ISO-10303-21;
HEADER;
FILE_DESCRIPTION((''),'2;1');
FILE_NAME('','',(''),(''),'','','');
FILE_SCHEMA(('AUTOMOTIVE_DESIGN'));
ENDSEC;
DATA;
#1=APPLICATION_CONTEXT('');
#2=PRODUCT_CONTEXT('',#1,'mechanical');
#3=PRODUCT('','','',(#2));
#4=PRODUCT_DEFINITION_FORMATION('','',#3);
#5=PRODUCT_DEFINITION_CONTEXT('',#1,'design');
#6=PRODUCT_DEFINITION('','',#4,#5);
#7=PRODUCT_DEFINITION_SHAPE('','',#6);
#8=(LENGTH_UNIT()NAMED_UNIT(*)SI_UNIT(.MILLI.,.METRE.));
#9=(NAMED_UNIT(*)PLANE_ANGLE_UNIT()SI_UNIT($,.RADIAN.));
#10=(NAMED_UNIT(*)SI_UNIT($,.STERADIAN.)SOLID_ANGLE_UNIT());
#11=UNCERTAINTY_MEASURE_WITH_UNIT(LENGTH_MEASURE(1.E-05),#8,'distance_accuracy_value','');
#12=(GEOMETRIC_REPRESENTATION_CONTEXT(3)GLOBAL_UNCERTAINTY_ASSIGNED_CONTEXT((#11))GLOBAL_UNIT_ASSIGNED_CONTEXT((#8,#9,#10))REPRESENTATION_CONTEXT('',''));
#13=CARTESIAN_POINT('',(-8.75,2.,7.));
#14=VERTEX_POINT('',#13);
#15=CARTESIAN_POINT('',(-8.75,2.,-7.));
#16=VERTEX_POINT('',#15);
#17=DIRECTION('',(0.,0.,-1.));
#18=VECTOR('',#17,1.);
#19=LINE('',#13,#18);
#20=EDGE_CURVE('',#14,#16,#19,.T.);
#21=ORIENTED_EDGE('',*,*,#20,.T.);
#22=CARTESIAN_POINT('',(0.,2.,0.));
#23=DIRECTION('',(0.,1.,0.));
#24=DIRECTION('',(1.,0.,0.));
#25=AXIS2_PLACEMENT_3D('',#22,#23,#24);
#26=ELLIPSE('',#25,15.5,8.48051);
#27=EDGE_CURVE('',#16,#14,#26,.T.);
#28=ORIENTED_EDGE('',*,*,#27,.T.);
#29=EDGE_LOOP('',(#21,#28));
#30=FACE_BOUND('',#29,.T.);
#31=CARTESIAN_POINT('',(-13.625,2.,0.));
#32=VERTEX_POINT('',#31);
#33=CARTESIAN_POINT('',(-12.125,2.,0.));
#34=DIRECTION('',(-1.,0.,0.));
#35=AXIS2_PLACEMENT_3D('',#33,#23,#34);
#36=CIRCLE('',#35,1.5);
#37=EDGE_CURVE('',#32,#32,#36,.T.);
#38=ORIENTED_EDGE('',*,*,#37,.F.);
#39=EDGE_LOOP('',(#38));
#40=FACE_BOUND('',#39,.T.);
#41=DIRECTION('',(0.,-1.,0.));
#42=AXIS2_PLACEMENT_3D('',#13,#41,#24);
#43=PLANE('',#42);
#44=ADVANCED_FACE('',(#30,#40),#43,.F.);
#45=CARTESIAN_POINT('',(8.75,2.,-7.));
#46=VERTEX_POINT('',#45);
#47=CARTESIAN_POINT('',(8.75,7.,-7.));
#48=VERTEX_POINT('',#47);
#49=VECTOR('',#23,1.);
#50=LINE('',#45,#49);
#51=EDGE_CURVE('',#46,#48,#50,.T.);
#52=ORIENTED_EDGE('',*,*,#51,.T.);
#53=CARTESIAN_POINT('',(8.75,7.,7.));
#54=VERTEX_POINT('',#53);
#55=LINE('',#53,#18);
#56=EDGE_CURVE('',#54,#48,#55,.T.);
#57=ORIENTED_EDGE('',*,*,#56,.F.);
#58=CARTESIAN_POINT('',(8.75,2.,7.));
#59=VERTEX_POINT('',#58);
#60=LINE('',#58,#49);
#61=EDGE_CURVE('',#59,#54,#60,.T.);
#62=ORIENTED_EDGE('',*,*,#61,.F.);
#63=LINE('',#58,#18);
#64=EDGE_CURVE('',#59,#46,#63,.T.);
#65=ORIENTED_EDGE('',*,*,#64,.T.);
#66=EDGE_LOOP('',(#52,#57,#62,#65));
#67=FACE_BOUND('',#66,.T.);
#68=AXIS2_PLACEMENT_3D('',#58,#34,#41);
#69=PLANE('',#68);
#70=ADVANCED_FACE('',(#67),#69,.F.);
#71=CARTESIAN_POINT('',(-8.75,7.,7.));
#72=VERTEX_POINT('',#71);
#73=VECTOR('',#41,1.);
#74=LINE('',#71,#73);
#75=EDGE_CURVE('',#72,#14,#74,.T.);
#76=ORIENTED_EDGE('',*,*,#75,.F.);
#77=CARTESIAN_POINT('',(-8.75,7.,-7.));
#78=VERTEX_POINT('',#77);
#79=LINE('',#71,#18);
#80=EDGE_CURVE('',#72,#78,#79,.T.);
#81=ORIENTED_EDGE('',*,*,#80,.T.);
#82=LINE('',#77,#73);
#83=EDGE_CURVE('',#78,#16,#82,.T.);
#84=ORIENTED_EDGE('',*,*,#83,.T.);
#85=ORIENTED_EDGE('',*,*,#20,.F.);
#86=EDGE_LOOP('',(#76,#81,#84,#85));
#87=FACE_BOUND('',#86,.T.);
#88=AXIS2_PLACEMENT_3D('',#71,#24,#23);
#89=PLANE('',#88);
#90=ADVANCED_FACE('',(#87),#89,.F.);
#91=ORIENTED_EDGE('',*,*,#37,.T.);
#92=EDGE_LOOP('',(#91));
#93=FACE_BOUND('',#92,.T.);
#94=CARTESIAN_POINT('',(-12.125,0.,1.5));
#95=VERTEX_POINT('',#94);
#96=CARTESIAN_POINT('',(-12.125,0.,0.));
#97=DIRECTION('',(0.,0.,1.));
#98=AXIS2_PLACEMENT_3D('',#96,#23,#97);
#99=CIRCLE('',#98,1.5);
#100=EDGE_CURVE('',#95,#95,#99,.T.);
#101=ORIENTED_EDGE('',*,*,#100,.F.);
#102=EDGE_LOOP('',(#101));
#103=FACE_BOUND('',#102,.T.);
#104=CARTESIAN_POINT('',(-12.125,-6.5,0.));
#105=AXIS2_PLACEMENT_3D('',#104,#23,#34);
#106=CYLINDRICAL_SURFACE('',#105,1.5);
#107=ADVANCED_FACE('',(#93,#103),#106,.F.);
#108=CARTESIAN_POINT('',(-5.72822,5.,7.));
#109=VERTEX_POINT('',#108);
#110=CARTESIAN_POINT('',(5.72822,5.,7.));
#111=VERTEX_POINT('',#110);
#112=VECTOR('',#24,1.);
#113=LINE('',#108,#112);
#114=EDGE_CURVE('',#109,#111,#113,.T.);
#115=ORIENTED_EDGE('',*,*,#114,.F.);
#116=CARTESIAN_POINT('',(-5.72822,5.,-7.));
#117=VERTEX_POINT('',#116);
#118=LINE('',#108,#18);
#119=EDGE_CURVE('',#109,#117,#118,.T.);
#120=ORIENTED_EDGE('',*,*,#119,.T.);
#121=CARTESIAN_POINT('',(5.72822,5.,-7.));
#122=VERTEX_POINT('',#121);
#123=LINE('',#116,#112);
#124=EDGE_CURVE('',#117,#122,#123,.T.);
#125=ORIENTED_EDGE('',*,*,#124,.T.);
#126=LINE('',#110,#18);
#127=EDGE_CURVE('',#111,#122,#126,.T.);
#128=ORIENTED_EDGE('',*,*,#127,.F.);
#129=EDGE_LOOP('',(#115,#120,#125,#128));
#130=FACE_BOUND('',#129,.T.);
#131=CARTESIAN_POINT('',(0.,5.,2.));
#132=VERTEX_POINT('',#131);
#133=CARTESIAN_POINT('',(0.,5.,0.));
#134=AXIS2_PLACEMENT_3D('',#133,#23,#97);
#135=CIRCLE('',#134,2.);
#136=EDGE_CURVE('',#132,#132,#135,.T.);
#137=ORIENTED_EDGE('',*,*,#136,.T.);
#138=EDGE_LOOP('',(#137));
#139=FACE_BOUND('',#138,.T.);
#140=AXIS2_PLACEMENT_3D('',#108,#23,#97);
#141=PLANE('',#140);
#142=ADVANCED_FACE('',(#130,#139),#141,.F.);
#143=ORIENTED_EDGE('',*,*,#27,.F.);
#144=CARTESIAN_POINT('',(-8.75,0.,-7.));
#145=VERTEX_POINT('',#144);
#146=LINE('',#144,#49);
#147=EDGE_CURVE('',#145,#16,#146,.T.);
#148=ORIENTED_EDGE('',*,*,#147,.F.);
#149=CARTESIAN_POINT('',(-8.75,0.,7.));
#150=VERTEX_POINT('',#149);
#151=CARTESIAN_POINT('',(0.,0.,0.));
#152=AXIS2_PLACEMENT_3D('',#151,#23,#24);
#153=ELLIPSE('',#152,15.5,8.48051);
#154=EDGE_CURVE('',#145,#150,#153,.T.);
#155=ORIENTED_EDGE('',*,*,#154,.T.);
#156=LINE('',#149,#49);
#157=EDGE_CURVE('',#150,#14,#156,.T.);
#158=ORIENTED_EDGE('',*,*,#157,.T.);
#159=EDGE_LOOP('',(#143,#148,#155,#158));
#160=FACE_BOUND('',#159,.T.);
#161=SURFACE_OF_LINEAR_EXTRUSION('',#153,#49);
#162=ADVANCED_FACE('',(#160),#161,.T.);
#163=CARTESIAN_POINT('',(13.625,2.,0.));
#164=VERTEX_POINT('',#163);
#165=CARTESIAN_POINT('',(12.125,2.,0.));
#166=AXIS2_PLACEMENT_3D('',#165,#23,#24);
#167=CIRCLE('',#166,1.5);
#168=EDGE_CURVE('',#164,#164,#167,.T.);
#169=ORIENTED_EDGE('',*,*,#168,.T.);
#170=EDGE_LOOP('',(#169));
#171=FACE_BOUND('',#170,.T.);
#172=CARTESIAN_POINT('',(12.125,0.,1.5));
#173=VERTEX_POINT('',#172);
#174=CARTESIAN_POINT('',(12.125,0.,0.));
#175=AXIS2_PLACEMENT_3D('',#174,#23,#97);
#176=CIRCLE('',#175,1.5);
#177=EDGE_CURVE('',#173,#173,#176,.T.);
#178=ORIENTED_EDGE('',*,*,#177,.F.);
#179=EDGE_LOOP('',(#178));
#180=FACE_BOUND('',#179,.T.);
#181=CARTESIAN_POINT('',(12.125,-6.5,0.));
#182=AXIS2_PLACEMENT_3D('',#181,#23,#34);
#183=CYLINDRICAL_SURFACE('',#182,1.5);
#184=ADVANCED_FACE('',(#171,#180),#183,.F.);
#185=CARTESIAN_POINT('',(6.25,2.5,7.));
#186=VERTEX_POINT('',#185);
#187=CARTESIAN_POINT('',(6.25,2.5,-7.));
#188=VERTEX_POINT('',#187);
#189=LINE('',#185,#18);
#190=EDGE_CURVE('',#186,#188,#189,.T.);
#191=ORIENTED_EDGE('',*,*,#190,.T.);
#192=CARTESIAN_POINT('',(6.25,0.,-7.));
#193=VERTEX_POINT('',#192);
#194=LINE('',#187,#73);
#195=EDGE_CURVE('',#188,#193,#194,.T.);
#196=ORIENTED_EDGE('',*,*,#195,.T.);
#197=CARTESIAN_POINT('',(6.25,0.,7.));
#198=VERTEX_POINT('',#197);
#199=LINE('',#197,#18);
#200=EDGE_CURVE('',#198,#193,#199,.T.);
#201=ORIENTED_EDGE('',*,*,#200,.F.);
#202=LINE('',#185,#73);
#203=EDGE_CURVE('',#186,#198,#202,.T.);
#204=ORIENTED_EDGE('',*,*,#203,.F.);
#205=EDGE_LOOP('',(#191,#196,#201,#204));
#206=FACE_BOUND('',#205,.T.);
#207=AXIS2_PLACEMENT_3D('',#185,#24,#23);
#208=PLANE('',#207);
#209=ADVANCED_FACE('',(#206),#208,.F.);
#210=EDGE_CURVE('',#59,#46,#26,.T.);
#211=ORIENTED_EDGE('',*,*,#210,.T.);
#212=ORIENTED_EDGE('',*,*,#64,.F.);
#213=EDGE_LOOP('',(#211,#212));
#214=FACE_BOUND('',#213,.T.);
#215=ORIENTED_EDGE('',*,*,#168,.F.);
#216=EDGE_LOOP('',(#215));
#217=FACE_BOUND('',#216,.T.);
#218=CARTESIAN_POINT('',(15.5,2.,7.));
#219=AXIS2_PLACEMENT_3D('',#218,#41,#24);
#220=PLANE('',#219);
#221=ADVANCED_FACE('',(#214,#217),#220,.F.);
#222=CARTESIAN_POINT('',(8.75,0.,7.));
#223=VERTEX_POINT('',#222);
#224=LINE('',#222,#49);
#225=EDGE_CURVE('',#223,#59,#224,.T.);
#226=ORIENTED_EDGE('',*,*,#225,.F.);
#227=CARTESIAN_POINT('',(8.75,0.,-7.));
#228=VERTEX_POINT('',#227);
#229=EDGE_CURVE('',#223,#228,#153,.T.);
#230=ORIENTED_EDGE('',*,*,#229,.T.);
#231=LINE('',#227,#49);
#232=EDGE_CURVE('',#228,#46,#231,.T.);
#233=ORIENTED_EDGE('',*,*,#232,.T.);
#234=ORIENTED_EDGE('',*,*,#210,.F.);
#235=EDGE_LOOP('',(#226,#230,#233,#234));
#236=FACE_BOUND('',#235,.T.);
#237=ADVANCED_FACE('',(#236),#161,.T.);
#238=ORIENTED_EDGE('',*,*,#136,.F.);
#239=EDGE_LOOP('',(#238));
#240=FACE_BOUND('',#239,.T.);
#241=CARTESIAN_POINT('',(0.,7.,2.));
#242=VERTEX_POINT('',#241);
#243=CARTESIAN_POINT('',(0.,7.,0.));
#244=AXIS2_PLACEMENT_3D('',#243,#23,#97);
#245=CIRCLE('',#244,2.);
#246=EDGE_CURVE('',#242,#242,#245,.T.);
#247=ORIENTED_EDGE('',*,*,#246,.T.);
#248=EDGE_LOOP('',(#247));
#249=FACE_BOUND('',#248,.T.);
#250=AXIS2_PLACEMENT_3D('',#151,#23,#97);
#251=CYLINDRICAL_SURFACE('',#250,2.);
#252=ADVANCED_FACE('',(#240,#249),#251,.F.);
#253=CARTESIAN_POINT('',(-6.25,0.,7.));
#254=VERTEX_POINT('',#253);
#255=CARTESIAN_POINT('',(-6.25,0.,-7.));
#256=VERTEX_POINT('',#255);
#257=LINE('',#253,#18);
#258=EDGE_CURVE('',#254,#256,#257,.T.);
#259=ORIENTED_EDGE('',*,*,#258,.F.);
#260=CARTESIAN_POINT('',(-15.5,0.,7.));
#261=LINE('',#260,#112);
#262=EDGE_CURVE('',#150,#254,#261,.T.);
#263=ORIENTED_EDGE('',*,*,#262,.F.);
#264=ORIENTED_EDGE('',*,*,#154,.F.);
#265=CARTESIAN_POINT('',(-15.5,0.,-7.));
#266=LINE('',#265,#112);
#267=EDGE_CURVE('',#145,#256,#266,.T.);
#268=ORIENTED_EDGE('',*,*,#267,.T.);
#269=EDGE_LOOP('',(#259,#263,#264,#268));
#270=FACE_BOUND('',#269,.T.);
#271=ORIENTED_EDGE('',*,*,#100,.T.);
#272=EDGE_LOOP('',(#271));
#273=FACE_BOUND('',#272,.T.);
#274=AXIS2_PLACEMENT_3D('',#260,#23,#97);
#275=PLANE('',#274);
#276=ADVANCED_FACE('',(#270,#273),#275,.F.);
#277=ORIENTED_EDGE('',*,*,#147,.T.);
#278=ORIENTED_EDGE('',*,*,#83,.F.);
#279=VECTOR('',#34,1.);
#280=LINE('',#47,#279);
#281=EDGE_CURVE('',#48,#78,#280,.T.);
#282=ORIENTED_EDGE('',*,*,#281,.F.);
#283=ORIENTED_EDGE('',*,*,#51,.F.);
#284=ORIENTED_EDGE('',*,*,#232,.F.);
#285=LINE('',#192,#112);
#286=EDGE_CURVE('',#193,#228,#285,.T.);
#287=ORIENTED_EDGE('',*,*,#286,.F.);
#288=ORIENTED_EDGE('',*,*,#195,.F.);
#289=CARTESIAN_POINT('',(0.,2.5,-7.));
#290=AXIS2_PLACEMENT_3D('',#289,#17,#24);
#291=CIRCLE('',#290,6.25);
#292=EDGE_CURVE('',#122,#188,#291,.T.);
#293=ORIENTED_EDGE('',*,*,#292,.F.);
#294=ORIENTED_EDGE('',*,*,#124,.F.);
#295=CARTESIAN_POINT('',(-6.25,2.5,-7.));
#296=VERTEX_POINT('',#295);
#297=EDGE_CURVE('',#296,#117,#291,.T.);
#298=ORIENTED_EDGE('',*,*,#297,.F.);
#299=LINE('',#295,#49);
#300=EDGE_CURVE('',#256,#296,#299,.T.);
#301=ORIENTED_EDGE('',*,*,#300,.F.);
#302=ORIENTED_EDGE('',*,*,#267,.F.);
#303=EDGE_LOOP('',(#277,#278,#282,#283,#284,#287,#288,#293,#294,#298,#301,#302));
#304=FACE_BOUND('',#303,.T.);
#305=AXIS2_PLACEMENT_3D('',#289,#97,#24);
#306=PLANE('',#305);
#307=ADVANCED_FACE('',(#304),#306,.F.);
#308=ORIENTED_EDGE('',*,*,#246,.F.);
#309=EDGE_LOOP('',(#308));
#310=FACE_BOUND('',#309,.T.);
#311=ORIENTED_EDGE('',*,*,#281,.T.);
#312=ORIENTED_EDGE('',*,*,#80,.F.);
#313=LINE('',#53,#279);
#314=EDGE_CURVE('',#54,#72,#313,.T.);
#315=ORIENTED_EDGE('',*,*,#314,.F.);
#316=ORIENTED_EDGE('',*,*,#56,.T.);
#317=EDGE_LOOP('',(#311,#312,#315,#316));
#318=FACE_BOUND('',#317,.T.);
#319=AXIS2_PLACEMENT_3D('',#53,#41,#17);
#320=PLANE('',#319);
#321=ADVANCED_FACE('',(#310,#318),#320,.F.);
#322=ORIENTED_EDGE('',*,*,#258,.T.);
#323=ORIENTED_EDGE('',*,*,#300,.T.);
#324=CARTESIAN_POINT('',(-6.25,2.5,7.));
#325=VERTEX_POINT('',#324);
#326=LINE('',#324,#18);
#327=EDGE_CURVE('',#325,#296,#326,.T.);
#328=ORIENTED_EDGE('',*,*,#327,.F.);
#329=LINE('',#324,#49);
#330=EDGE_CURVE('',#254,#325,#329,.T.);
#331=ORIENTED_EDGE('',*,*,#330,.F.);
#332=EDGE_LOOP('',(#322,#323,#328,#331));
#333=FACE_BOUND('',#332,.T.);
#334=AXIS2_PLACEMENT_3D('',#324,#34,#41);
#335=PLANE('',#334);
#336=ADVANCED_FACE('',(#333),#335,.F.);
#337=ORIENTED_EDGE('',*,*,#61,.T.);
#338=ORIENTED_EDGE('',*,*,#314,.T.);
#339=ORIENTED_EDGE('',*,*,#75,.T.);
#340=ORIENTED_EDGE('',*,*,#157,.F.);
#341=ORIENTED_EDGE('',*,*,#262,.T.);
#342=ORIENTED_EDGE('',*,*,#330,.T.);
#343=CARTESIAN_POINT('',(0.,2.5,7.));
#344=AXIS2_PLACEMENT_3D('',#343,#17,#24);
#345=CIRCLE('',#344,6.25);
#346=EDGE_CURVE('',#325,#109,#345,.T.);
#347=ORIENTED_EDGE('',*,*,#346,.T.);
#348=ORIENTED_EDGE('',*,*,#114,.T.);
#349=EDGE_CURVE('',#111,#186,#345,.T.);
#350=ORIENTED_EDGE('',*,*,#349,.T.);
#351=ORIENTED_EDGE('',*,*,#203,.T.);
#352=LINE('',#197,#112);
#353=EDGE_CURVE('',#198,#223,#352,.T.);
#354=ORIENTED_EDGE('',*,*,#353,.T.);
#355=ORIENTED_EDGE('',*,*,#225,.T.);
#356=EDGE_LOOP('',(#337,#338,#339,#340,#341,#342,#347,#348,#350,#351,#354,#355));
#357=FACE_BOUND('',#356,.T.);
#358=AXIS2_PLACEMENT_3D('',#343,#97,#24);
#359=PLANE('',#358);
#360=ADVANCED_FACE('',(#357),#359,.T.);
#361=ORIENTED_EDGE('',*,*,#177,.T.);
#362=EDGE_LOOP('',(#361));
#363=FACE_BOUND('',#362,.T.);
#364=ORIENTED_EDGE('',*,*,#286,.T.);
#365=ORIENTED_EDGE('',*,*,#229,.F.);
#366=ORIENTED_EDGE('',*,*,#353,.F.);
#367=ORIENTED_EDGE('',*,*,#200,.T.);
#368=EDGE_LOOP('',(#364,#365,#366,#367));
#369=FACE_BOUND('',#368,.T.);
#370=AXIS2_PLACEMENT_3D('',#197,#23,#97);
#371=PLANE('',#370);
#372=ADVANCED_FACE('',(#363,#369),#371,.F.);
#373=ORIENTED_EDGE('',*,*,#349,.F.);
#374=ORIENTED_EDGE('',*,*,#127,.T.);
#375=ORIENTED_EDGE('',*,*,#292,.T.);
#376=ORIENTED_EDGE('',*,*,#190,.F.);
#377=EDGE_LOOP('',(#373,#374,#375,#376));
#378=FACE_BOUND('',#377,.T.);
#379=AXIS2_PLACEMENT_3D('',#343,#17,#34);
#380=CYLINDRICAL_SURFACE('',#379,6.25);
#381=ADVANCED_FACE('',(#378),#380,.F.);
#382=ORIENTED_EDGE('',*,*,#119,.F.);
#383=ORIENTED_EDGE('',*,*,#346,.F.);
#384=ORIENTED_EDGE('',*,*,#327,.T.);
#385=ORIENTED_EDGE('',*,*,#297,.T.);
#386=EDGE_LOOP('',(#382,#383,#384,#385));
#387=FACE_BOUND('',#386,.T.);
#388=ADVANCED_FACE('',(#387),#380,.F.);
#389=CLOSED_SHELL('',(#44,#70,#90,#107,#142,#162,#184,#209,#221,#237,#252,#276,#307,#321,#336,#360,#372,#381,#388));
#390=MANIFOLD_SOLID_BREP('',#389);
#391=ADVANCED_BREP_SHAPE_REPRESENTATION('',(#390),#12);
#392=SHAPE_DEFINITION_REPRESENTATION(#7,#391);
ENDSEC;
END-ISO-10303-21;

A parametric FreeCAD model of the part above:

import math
import FreeCAD as App
import Part
import Sketcher

V = App.Vector
Q = App.Units.Quantity

doc = App.newDocument("Part")
body = doc.addObject("PartDesign::Body", "Body")

# Sketch on XY plane
sketch1 = body.newObject("Sketcher::SketchObject", "Sketch")
sketch1.AttachmentSupport = (doc.getObject("XY_Plane"), [""])
sketch1.MapMode = "FlatFace"
sketch1.addGeometry([
    Part.LineSegment(V(-15.5, 0, 0), V(-6.2, 0, 0)),  # 0
    Part.LineSegment(V(-6.2, 0, 0), V(-6.2, 2.5, 0)),  # 1
    Part.ArcOfCircle(Part.Circle(V(0, 2.5, 0), V(0, 0, 1), 6.2), math.radians(156), math.radians(180)),  # 2
    Part.LineSegment(V(-5.7, 5, 0), V(5.7, 5, 0)),  # 3
    Part.ArcOfCircle(Part.Circle(V(0, 2.5, 0), V(0, 0, 1), 6.2), math.radians(0), math.radians(24)),  # 4
    Part.LineSegment(V(6.2, 2.5, 0), V(6.2, 0, 0)),  # 5
    Part.LineSegment(V(6.2, 0, 0), V(15.5, 0, 0)),  # 6
    Part.LineSegment(V(15.5, 0, 0), V(15.5, 2, 0)),  # 7
    Part.LineSegment(V(15.5, 2, 0), V(8.8, 2, 0)),  # 8
    Part.LineSegment(V(8.8, 2, 0), V(8.8, 7, 0)),  # 9
    Part.LineSegment(V(8.8, 7, 0), V(-8.8, 7, 0)),  # 10
    Part.LineSegment(V(-8.8, 7, 0), V(-8.8, 2, 0)),  # 11
    Part.LineSegment(V(-8.8, 2, 0), V(-15.5, 2, 0)),  # 12
    Part.LineSegment(V(-15.5, 2, 0), V(-15.5, 0, 0)),  # 13
], False)
sketch1.addConstraint([
    Sketcher.Constraint("Coincident", 0, 2, 1, 1),
    Sketcher.Constraint("Tangent", 1, 2, 2, 2),
    Sketcher.Constraint("Coincident", 2, 1, 3, 1),
    Sketcher.Constraint("Coincident", 3, 2, 4, 2),
    Sketcher.Constraint("Tangent", 4, 1, 5, 1),
    Sketcher.Constraint("Coincident", 5, 2, 6, 1),
    Sketcher.Constraint("Coincident", 6, 2, 7, 1),
    Sketcher.Constraint("Coincident", 7, 2, 8, 1),
    Sketcher.Constraint("Coincident", 8, 2, 9, 1),
    Sketcher.Constraint("Coincident", 9, 2, 10, 1),
    Sketcher.Constraint("Coincident", 10, 2, 11, 1),
    Sketcher.Constraint("Coincident", 11, 2, 12, 1),
    Sketcher.Constraint("Coincident", 12, 2, 13, 1),
    Sketcher.Constraint("Coincident", 13, 2, 0, 1),
    Sketcher.Constraint("Horizontal", 0),
    Sketcher.Constraint("Vertical", 1),
    Sketcher.Constraint("Horizontal", 3),
    Sketcher.Constraint("Vertical", 5),
    Sketcher.Constraint("Horizontal", 6),
    Sketcher.Constraint("Vertical", 7),
    Sketcher.Constraint("Horizontal", 8),
    Sketcher.Constraint("Vertical", 9),
    Sketcher.Constraint("Horizontal", 10),
    Sketcher.Constraint("Vertical", 11),
    Sketcher.Constraint("Horizontal", 12),
    Sketcher.Constraint("Vertical", 13),
    Sketcher.Constraint("Coincident", 4, 3, 2, 3),
    Sketcher.Constraint("Equal", 2, 4),
    Sketcher.Constraint("Symmetric", 0, 2, 5, 2, -1, 1),
    Sketcher.Constraint("Symmetric", 8, 2, 11, 2, -2),
    Sketcher.Constraint("Symmetric", 6, 2, 13, 2, -2),
    Sketcher.Constraint("DistanceY", 7, 1, 7, 2, Q("2 mm")),
    Sketcher.Constraint("DistanceY", 9, 1, 9, 2, Q("5 mm")),
    Sketcher.Constraint("Radius", 2, Q("6.25 mm")),
    Sketcher.Constraint("DistanceX", 10, 2, 10, 1, Q("17.5 mm")),
    Sketcher.Constraint("DistanceY", 1, 1, 1, 2, Q("2.5 mm")),
    Sketcher.Constraint("DistanceY", -1, 1, 2, 1, Q("5 mm")),
    Sketcher.Constraint("DistanceX", 0, 1, 0, 2, Q("9.25 mm")),
])
pad1 = body.newObject("PartDesign::Pad", "Pad")
pad1.Profile = sketch1
pad1.Length = 14
pad1.Midplane = True

# Sketch on XZ plane
sketch2 = body.newObject("Sketcher::SketchObject", "Sketch001")
sketch2.AttachmentSupport = (doc.getObject("XZ_Plane"), [""])
sketch2.MapMode = "FlatFace"
sketch2.AttachmentOffset = App.Placement(V(0, 0, -2), App.Rotation())
sketch2.addGeometry([
    Part.Circle(V(-12.1, 0, 0), V(0, 0, 1), 1.5),
    Part.Circle(V(12.1, 0, 0), V(0, 0, 1), 1.5),
], False)
sketch2.addConstraint([
    Sketcher.Constraint("Equal", 0, 1),
    Sketcher.Constraint("Symmetric", 0, 3, 1, 3, -1, 1),
    Sketcher.Constraint("PointOnObject", 0, 3, -1),
    Sketcher.Constraint("Diameter", 0, Q("3 mm")),
    Sketcher.Constraint("DistanceX", 0, 3, 1, 3, Q("24.25 mm")),
])
pocket1 = body.newObject("PartDesign::Pocket", "Pocket")
pocket1.Profile = sketch2
pocket1.Length = 8.5
pocket1.Reversed = True

# Sketch on XZ plane
sketch3 = body.newObject("Sketcher::SketchObject", "Sketch002")
sketch3.AttachmentSupport = (doc.getObject("XZ_Plane"), [""])
sketch3.MapMode = "FlatFace"
sketch3.AttachmentOffset = App.Placement(V(0, 0, -7), App.Rotation())
sketch3.addGeometry(Part.Circle(V(0, 0, 0), V(0, 0, 1), 2), False)
sketch3.addConstraint([
    Sketcher.Constraint("Coincident", 0, 3, -1, 1),
    Sketcher.Constraint("Diameter", 0, Q("4 mm")),
])
pocket2 = body.newObject("PartDesign::Pocket", "Pocket001")
pocket2.Profile = sketch3
pocket2.Type = "ThroughAll"
pocket2.Reversed = True

# Sketch on XZ plane
sketch4 = body.newObject("Sketcher::SketchObject", "Sketch003")
sketch4.AttachmentSupport = (doc.getObject("XZ_Plane"), [""])
sketch4.MapMode = "FlatFace"
sketch4.AttachmentOffset = App.Placement(V(0, 0, -2), App.Rotation())
sketch4.addGeometry([
    Part.BSplineCurve([V(-8.75, -7, 0), V(-15.5, -4.474227, 0), V(-15.5, 0, 0)], [3, 3], [2.170643252, 3.141592653], False, 2, [1, 0.88445354, 1], False),  # 0
    Part.LineSegment(V(-8.75, -7, 0), V(-15.5, -7, 0)),  # 1
    Part.LineSegment(V(-15.5, -7, 0), V(-15.5, 0, 0)),  # 2
    Part.LineSegment(V(15.5, -7, 0), V(8.75, -7, 0)),  # 3
    Part.BSplineCurve([V(15.5, 0, 0), V(15.5, -4.474227, 0), V(8.75, -7, 0)], [3, 3], [0, 0.970949401], False, 2, [1, 0.88445354, 1], False),  # 4
    Part.LineSegment(V(15.5, 0, 0), V(15.5, -7, 0)),  # 5
    Part.BSplineCurve([V(-15.5, 0, 0), V(-15.5, 4.474227, 0), V(-8.75, 7, 0)], [3, 3], [3.141592653, 4.112542055], False, 2, [1, 0.88445354, 1], False),  # 6
    Part.LineSegment(V(-15.5, 0, 0), V(-15.5, 7, 0)),  # 7
    Part.LineSegment(V(-15.5, 7, 0), V(-8.75, 7, 0)),  # 8
    Part.LineSegment(V(15.5, 7, 0), V(15.5, 0, 0)),  # 9
    Part.BSplineCurve([V(8.75, 7, 0), V(15.5, 4.474227, 0), V(15.5, 0, 0)], [3, 3], [5.312235906, 6.283185307], False, 2, [1, 0.88445354, 1], False),  # 10
    Part.LineSegment(V(8.75, 7, 0), V(15.5, 7, 0)),  # 11
], False)
sketch4.addConstraint([
    Sketcher.Constraint("Block", 0),
    Sketcher.Constraint("Block", 4),
    Sketcher.Constraint("Block", 6),
    Sketcher.Constraint("Block", 10),
    Sketcher.Constraint("Coincident", 0, 1, 1, 1),
    Sketcher.Constraint("Coincident", 1, 2, 2, 1),
    Sketcher.Constraint("Coincident", 2, 2, 0, 2),
    Sketcher.Constraint("Coincident", 3, 2, 4, 2),
    Sketcher.Constraint("Coincident", 4, 1, 5, 1),
    Sketcher.Constraint("Coincident", 5, 2, 3, 1),
    Sketcher.Constraint("Coincident", 6, 1, 7, 1),
    Sketcher.Constraint("Coincident", 7, 2, 8, 1),
    Sketcher.Constraint("Coincident", 8, 2, 6, 2),
    Sketcher.Constraint("Coincident", 9, 2, 10, 2),
    Sketcher.Constraint("Coincident", 10, 1, 11, 1),
    Sketcher.Constraint("Coincident", 11, 2, 9, 1),
    Sketcher.Constraint("Horizontal", 1),
    Sketcher.Constraint("Vertical", 2),
    Sketcher.Constraint("Horizontal", 3),
    Sketcher.Constraint("Vertical", 5),
    Sketcher.Constraint("Vertical", 7),
    Sketcher.Constraint("Horizontal", 8),
    Sketcher.Constraint("Vertical", 9),
    Sketcher.Constraint("Horizontal", 11),
])
pocket3 = body.newObject("PartDesign::Pocket", "Pocket002")
pocket3.Profile = sketch4
pocket3.Type = "ThroughAll"
pocket3.Reversed = True

doc.recompute()
